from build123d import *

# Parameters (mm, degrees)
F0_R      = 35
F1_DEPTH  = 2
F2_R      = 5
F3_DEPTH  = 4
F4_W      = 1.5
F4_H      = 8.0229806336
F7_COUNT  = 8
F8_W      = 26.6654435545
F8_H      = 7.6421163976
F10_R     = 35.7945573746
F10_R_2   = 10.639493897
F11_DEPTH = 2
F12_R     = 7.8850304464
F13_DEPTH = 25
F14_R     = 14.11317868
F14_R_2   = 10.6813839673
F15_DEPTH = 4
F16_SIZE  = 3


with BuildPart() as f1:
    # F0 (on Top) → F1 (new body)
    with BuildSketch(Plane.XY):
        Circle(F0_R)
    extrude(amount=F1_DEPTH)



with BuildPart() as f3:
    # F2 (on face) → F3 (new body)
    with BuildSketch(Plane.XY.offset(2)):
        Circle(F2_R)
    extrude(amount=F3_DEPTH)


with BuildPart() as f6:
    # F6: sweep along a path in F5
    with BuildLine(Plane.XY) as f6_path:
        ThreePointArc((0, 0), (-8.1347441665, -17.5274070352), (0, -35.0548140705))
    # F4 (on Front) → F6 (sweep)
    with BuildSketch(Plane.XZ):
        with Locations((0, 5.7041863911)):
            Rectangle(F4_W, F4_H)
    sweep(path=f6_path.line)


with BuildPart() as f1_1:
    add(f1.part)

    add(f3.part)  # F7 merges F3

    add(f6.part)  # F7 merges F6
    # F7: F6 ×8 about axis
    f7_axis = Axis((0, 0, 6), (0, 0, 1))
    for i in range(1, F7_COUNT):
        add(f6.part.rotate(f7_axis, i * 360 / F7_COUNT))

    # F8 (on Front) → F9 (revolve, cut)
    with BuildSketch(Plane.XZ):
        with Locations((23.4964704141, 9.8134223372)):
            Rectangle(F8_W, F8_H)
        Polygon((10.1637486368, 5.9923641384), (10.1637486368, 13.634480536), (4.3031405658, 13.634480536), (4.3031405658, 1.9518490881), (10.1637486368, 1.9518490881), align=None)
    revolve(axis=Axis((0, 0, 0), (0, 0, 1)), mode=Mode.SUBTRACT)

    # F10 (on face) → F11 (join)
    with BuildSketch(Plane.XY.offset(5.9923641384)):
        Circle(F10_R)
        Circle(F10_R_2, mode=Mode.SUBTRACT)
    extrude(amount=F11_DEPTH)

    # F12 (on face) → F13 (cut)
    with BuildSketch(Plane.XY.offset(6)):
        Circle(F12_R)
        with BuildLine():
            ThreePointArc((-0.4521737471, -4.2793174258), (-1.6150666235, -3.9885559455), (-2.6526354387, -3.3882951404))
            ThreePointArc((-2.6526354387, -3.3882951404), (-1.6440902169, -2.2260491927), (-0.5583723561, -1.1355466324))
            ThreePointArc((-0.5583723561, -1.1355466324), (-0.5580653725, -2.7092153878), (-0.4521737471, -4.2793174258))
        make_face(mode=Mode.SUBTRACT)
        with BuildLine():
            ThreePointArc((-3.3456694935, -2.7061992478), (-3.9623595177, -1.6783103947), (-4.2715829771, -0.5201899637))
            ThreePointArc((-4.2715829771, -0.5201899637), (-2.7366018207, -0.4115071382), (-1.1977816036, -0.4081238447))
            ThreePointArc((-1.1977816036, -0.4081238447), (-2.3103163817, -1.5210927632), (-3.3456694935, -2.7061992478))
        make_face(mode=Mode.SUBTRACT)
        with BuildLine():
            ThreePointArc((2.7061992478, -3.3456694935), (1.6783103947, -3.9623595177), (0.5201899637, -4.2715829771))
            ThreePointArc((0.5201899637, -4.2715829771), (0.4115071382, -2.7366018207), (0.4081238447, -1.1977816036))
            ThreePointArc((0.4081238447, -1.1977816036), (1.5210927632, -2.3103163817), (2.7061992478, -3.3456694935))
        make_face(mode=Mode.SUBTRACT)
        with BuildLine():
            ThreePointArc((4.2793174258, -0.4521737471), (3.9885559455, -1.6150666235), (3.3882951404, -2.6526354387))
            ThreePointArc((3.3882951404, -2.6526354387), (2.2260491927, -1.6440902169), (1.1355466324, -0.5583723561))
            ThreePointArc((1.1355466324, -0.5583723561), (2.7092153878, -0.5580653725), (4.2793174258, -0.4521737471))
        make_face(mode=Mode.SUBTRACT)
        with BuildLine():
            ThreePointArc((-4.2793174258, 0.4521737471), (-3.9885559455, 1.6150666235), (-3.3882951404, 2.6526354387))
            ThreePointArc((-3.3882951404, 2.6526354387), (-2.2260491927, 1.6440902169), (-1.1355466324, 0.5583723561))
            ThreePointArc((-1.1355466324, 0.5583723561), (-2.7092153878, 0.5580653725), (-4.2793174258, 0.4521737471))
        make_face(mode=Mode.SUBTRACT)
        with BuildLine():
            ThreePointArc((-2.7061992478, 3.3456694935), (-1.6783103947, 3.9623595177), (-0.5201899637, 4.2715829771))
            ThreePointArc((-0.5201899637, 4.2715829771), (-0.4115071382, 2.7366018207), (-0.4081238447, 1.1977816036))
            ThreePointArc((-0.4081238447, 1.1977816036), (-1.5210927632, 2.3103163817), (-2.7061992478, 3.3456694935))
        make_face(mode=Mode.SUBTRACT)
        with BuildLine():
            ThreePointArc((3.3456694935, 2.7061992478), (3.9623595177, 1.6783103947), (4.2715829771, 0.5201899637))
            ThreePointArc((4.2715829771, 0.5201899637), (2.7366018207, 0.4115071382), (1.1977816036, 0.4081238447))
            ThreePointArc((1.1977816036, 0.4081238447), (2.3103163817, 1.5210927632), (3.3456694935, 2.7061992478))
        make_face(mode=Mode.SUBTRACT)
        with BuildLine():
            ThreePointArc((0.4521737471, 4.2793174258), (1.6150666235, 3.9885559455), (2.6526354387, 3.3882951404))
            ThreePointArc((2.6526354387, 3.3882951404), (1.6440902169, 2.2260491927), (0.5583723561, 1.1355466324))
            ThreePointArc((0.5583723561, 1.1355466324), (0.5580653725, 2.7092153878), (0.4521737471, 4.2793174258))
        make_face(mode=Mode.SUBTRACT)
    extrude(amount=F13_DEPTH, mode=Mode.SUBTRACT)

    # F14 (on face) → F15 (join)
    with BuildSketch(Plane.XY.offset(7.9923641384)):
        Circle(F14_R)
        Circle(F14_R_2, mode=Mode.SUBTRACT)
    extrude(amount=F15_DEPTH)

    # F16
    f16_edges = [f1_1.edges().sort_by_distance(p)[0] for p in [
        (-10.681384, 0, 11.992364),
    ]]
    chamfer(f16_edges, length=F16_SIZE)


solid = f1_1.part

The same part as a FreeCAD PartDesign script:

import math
import FreeCAD as App
import Part
import Sketcher

V = App.Vector
Q = App.Units.Quantity


def edges_at(feature, points):
    """Names of the edges that pass closest to the given points."""
    edges = feature.Shape.Edges
    near = lambda p: min(range(len(edges)), key=lambda i: edges[i].distToShape(Part.Vertex(*p))[0])
    return sorted({f"Edge{near(p) + 1}" for p in points})


def add_polygon(sketch, points):
    """Adds a closed chain of lines whose ends are joined by coincident constraints."""
    first, n = sketch.GeometryCount, len(points)
    for a, b in zip(points, points[1:] + points[:1]):
        sketch.addGeometry(Part.LineSegment(App.Vector(*a, 0), App.Vector(*b, 0)), False)
    for i in range(n):
        sketch.addConstraint(Sketcher.Constraint("Coincident", first + i, 2, first + (i + 1) % n, 1))

doc = App.newDocument("Part")
body = doc.addObject("PartDesign::Body", "Body")

sketch1 = body.newObject("Sketcher::SketchObject", "Sketch")
sketch1.AttachmentSupport = (doc.getObject("XY_Plane"), [""])
sketch1.MapMode = "FlatFace"
sketch1.addGeometry(Part.Circle(V(0, 0, 0), V(0, 0, 1), 35), False)
sketch1.addConstraint(Sketcher.Constraint("Coincident", 0, 3, -1, 1))
sketch1.addConstraint(Sketcher.Constraint("Diameter", 0, Q("70 mm")))
pad1 = body.newObject("PartDesign::Pad", "Pad")
pad1.Profile = sketch1
pad1.Length = 2
body2 = doc.addObject("PartDesign::Body", "Body001")

sketch2 = body2.newObject("Sketcher::SketchObject", "Sketch001")
sketch2.AttachmentSupport = (doc.getObject("XY_Plane001"), [""])
sketch2.MapMode = "FlatFace"
sketch2.AttachmentOffset = App.Placement(V(0, 0, 2), App.Rotation())
sketch2.addGeometry(Part.Circle(V(0, 0, 0), V(0, 0, 1), 5), False)
sketch2.addConstraint(Sketcher.Constraint("Coincident", 0, 3, -1, 1))
sketch2.addConstraint(Sketcher.Constraint("Diameter", 0, Q("10 mm")))
pad2 = body2.newObject("PartDesign::Pad", "Pad001")
pad2.Profile = sketch2
pad2.Length = 4
body3 = doc.addObject("PartDesign::Body", "Body002")

sketch3 = body3.newObject("Sketcher::SketchObject", "Sketch002")
sketch3.AttachmentSupport = (doc.getObject("XZ_Plane002"), [""])
sketch3.MapMode = "FlatFace"
add_polygon(sketch3, [(-0.75, 9.715677), (-0.75, 1.692696), (0.75, 1.692696), (0.75, 9.715677)])
sketch3.addConstraint(Sketcher.Constraint("Vertical", 0))
sketch3.addConstraint(Sketcher.Constraint("Horizontal", 1))
sketch3.addConstraint(Sketcher.Constraint("Vertical", 2))
sketch3.addConstraint(Sketcher.Constraint("Horizontal", 3))
sketch3.addConstraint(Sketcher.Constraint("DistanceX", 1, 1, 1, 2, Q("1.5 mm")))
sketch3.addConstraint(Sketcher.Constraint("DistanceX", 0, 2, -1, 1, Q("0.75 mm")))
sketch3.addConstraint(Sketcher.Constraint("DistanceY", 0, 2, 0, 1, Q("8.022981 mm")))
sketch3.addConstraint(Sketcher.Constraint("DistanceY", -1, 1, 0, 2, Q("1.692696 mm")))

sketch4 = body3.newObject("Sketcher::SketchObject", "Sketch003")
sketch4.AttachmentSupport = (doc.getObject("XY_Plane002"), [""])
sketch4.MapMode = "FlatFace"
sketch4.addGeometry(Part.ArcOfCircle(Part.Circle(V(14.815213, -17.527407, 0), V(0, 0, 1), 22.949957), math.radians(130.206494), math.radians(229.793506)), False)
sketch4.addConstraint(Sketcher.Constraint("Coincident", 0, 1, -1, 1))
sketch4.addConstraint(Sketcher.Constraint("PointOnObject", 0, 2, -2))
sketch4.addConstraint(Sketcher.Constraint("Radius", 0, Q("22.949957 mm")))
sketch4.addConstraint(Sketcher.Constraint("DistanceX", -1, 1, 0, 3, Q("14.815213 mm")))
doc.recompute()

additivepipe = body3.newObject("PartDesign::AdditivePipe", "AdditivePipe")
additivepipe.Profile = sketch3
additivepipe.Spine = (sketch4, ["Edge1"])
doc.recompute()

boolean = body.newObject("PartDesign::Boolean", "Boolean")
boolean.Type = "Fuse"
boolean.addObjects([body2])
doc.recompute()

body4 = doc.addObject("PartDesign::Body", "Body003")
body4.BaseFeature = body3
boolean2 = body.newObject("PartDesign::Boolean", "Boolean001")
boolean2.Type = "Fuse"
boolean2.addObjects([body4])
doc.recompute()

body5 = doc.addObject("PartDesign::Body", "Body004")
body5.BaseFeature = body3
body5.Placement = App.Placement(V(0, 0, 0), App.Rotation(V(0, 0, 1), 45))
boolean3 = body.newObject("PartDesign::Boolean", "Boolean002")
boolean3.Type = "Fuse"
boolean3.addObjects([body5])
doc.recompute()

body6 = doc.addObject("PartDesign::Body", "Body005")
body6.BaseFeature = body3
body6.Placement = App.Placement(V(0, 0, 0), App.Rotation(V(0, 0, 1), 90))
boolean4 = body.newObject("PartDesign::Boolean", "Boolean003")
boolean4.Type = "Fuse"
boolean4.addObjects([body6])
doc.recompute()

body7 = doc.addObject("PartDesign::Body", "Body006")
body7.BaseFeature = body3
body7.Placement = App.Placement(V(0, 0, 0), App.Rotation(V(0, 0, 1), 135))
boolean5 = body.newObject("PartDesign::Boolean", "Boolean004")
boolean5.Type = "Fuse"
boolean5.addObjects([body7])
doc.recompute()

body8 = doc.addObject("PartDesign::Body", "Body007")
body8.BaseFeature = body3
body8.Placement = App.Placement(V(0, 0, 0), App.Rotation(V(0, 0, 1), 180))
boolean6 = body.newObject("PartDesign::Boolean", "Boolean005")
boolean6.Type = "Fuse"
boolean6.addObjects([body8])
doc.recompute()

body9 = doc.addObject("PartDesign::Body", "Body008")
body9.BaseFeature = body3
body9.Placement = App.Placement(V(0, 0, 0), App.Rotation(V(0, 0, 1), 225))
boolean7 = body.newObject("PartDesign::Boolean", "Boolean006")
boolean7.Type = "Fuse"
boolean7.addObjects([body9])
doc.recompute()

body10 = doc.addObject("PartDesign::Body", "Body009")
body10.BaseFeature = body3
body10.Placement = App.Placement(V(0, 0, 0), App.Rotation(V(0, 0, 1), 270))
boolean8 = body.newObject("PartDesign::Boolean", "Boolean007")
boolean8.Type = "Fuse"
boolean8.addObjects([body10])
doc.recompute()

body3.Placement = App.Placement(V(0, 0, 0), App.Rotation(V(0, 0, 1), 315))
boolean9 = body.newObject("PartDesign::Boolean", "Boolean008")
boolean9.Type = "Fuse"
boolean9.addObjects([body3])

sketch5 = body.newObject("Sketcher::SketchObject", "Sketch004")
sketch5.AttachmentSupport = (doc.getObject("XZ_Plane"), [""])
sketch5.MapMode = "FlatFace"
add_polygon(sketch5, [(10.163749, 5.992364), (36.829192, 5.992364), (36.829192, 13.634481), (4.303141, 13.634481), (4.303141, 1.951849), (10.163749, 1.951849)])
sketch5.addConstraint(Sketcher.Constraint("Horizontal", 0))
sketch5.addConstraint(Sketcher.Constraint("Vertical", 1))
sketch5.addConstraint(Sketcher.Constraint("Horizontal", 2))
sketch5.addConstraint(Sketcher.Constraint("Vertical", 3))
sketch5.addConstraint(Sketcher.Constraint("Horizontal", 4))
sketch5.addConstraint(Sketcher.Constraint("Vertical", 5))
sketch5.addConstraint(Sketcher.Constraint("DistanceX", 2, 2, 2, 1, Q("32.526052 mm")))
sketch5.addConstraint(Sketcher.Constraint("DistanceX", 4, 1, 4, 2, Q("5.860608 mm")))
sketch5.addConstraint(Sketcher.Constraint("DistanceY", 3, 2, 3, 1, Q("11.682631 mm")))
sketch5.addConstraint(Sketcher.Constraint("DistanceY", 1, 1, 1, 2, Q("7.642116 mm")))
sketch5.addConstraint(Sketcher.Constraint("DistanceY", -1, 1, 1, 2, Q("13.634481 mm")))
sketch5.addConstraint(Sketcher.Constraint("DistanceX", -1, 1, 2, 2, Q("4.303141 mm")))
groove = body.newObject("PartDesign::Groove", "Groove")
groove.Profile = sketch5
groove.ReferenceAxis = (sketch5, ["V_Axis"])
groove.Angle = 360

sketch6 = body.newObject("Sketcher::SketchObject", "Sketch005")
sketch6.AttachmentSupport = (doc.getObject("XY_Plane"), [""])
sketch6.MapMode = "FlatFace"
sketch6.AttachmentOffset = App.Placement(V(0, 0, 5.992364), App.Rotation())
sketch6.addGeometry(Part.Circle(V(0, 0, 0), V(0, 0, 1), 35.794557), False)
sketch6.addGeometry(Part.Circle(V(0, 0, 0), V(0, 0, 1), 10.639494), False)
sketch6.addConstraint(Sketcher.Constraint("Coincident", 0, 3, -1, 1))
sketch6.addConstraint(Sketcher.Constraint("Coincident", 1, 3, -1, 1))
sketch6.addConstraint(Sketcher.Constraint("Diameter", 0, Q("71.589115 mm")))
sketch6.addConstraint(Sketcher.Constraint("Diameter", 1, Q("21.278988 mm")))
pad3 = body.newObject("PartDesign::Pad", "Pad002")
pad3.Profile = sketch6
pad3.Length = 2

sketch7 = body.newObject("Sketcher::SketchObject", "Sketch006")
sketch7.AttachmentSupport = (doc.getObject("XY_Plane"), [""])
sketch7.MapMode = "FlatFace"
sketch7.AttachmentOffset = App.Placement(V(0, 0, 6), App.Rotation())
sketch7.addGeometry(Part.Circle(V(0, 0, 0), V(0, 0, 1), 7.88503), False)
sketch7.addGeometry(Part.ArcOfCircle(Part.Circle(V(22.869686, -1.917811, 0), V(0, 0, 1), 23.441115), math.radians(178.087601), math.radians(185.781904)), False)
sketch7.addGeometry(Part.ArcOfCircle(Part.Circle(V(0, 0, 0), V(0, 0, 1), 4.303141), math.radians(-128.056754), math.radians(-96.031772)), False)
sketch7.addGeometry(Part.ArcOfCircle(Part.Circle(V(14.815213, -17.527407, 0), V(0, 0, 1), 22.4731), math.radians(133.163952), math.radians(141.012032)), False)
sketch7.addGeometry(Part.ArcOfCircle(Part.Circle(V(14.815213, -17.527407, 0), V(0, 0, 1), 23.441115), math.radians(133.087601), math.radians(140.781904)), False)
sketch7.addGeometry(Part.ArcOfCircle(Part.Circle(V(0, 0, 0), V(0, 0, 1), 4.303141), math.radians(-173.056754), math.radians(-141.031772)), False)
sketch7.addGeometry(Part.ArcOfCircle(Part.Circle(V(-1.917811, -22.869686, 0), V(0, 0, 1), 22.4731), math.radians(88.163952), math.radians(96.012032)), False)
sketch7.addGeometry(Part.ArcOfCircle(Part.Circle(V(17.527407, 14.815213, 0), V(0, 0, 1), 23.441115), math.radians(-136.912399), math.radians(-129.218096)), False)
sketch7.addGeometry(Part.ArcOfCircle(Part.Circle(V(0, 0, 0), V(0, 0, 1), 4.303141), math.radians(-83.056754), math.radians(-51.031772)), False)
sketch7.addGeometry(Part.ArcOfCircle(Part.Circle(V(22.869686, -1.917811, 0), V(0, 0, 1), 22.4731), math.radians(178.163952), math.radians(186.012032)), False)
sketch7.addGeometry(Part.ArcOfCircle(Part.Circle(V(1.917811, 22.869686, 0), V(0, 0, 1), 23.441115), math.radians(-91.912399), math.radians(-84.218096)), False)
sketch7.addGeometry(Part.ArcOfCircle(Part.Circle(V(0, 0, 0), V(0, 0, 1), 4.303141), math.radians(-38.056754), math.radians(-6.031772)), False)
sketch7.addGeometry(Part.ArcOfCircle(Part.Circle(V(17.527407, 14.815213, 0), V(0, 0, 1), 22.4731), math.radians(-136.836048), math.radians(-128.987968)), False)
sketch7.addGeometry(Part.ArcOfCircle(Part.Circle(V(-1.917811, -22.869686, 0), V(0, 0, 1), 23.441115), math.radians(88.087601), math.radians(95.781904)), False)
sketch7.addGeometry(Part.ArcOfCircle(Part.Circle(V(0, 0, 0), V(0, 0, 1), 4.303141), math.radians(141.943246), math.radians(173.968228)), False)
sketch7.addGeometry(Part.ArcOfCircle(Part.Circle(V(-17.527407, -14.815213, 0), V(0, 0, 1), 22.4731), math.radians(43.163952), math.radians(51.012032)), False)
sketch7.addGeometry(Part.ArcOfCircle(Part.Circle(V(-17.527407, -14.815213, 0), V(0, 0, 1), 23.441115), math.radians(43.087601), math.radians(50.781904)), False)
sketch7.addGeometry(Part.ArcOfCircle(Part.Circle(V(0, 0, 0), V(0, 0, 1), 4.303141), math.radians(96.943246), math.radians(128.968228)), False)
sketch7.addGeometry(Part.ArcOfCircle(Part.Circle(V(-22.869686, 1.917811, 0), V(0, 0, 1), 22.4731), math.radians(-1.836048), math.radians(6.012032)), False)
sketch7.addGeometry(Part.ArcOfCircle(Part.Circle(V(-14.815213, 17.527407, 0), V(0, 0, 1), 23.441115), math.radians(-46.912399), math.radians(-39.218096)), False)
sketch7.addGeometry(Part.ArcOfCircle(Part.Circle(V(0, 0, 0), V(0, 0, 1), 4.303141), math.radians(6.943246), math.radians(38.968228)), False)
sketch7.addGeometry(Part.ArcOfCircle(Part.Circle(V(1.917811, 22.869686, 0), V(0, 0, 1), 22.4731), math.radians(-91.836048), math.radians(-83.987968)), False)
sketch7.addGeometry(Part.ArcOfCircle(Part.Circle(V(-22.869686, 1.917811, 0), V(0, 0, 1), 23.441115), math.radians(-1.912399), math.radians(5.781904)), False)
sketch7.addGeometry(Part.ArcOfCircle(Part.Circle(V(0, 0, 0), V(0, 0, 1), 4.303141), math.radians(51.943246), math.radians(83.968228)), False)
sketch7.addGeometry(Part.ArcOfCircle(Part.Circle(V(-14.815213, 17.527407, 0), V(0, 0, 1), 22.4731), math.radians(-46.836048), math.radians(-38.987968)), False)
sketch7.addConstraint(Sketcher.Constraint("Coincident", 1, 2, 2, 2))
sketch7.addConstraint(Sketcher.Constraint("Coincident", 2, 1, 3, 2))
sketch7.addConstraint(Sketcher.Constraint("Coincident", 3, 1, 1, 1))
sketch7.addConstraint(Sketcher.Constraint("Coincident", 4, 2, 5, 2))
sketch7.addConstraint(Sketcher.Constraint("Coincident", 5, 1, 6, 2))
sketch7.addConstraint(Sketcher.Constraint("Coincident", 6, 1, 4, 1))
sketch7.addConstraint(Sketcher.Constraint("Coincident", 7, 2, 8, 2))
sketch7.addConstraint(Sketcher.Constraint("Coincident", 8, 1, 9, 2))
sketch7.addConstraint(Sketcher.Constraint("Coincident", 9, 1, 7, 1))
sketch7.addConstraint(Sketcher.Constraint("Coincident", 10, 2, 11, 2))
sketch7.addConstraint(Sketcher.Constraint("Coincident", 11, 1, 12, 2))
sketch7.addConstraint(Sketcher.Constraint("Coincident", 12, 1, 10, 1))
sketch7.addConstraint(Sketcher.Constraint("Coincident", 13, 2, 14, 2))
sketch7.addConstraint(Sketcher.Constraint("Coincident", 14, 1, 15, 2))
sketch7.addConstraint(Sketcher.Constraint("Coincident", 15, 1, 13, 1))
sketch7.addConstraint(Sketcher.Constraint("Coincident", 16, 2, 17, 2))
sketch7.addConstraint(Sketcher.Constraint("Coincident", 17, 1, 18, 2))
sketch7.addConstraint(Sketcher.Constraint("Coincident", 18, 1, 16, 1))
sketch7.addConstraint(Sketcher.Constraint("Coincident", 19, 2, 20, 2))
sketch7.addConstraint(Sketcher.Constraint("Coincident", 20, 1, 21, 2))
sketch7.addConstraint(Sketcher.Constraint("Coincident", 21, 1, 19, 1))
sketch7.addConstraint(Sketcher.Constraint("Coincident", 22, 2, 23, 2))
sketch7.addConstraint(Sketcher.Constraint("Coincident", 23, 1, 24, 2))
sketch7.addConstraint(Sketcher.Constraint("Coincident", 24, 1, 22, 1))
sketch7.addConstraint(Sketcher.Constraint("Coincident", 0, 3, -1, 1))
sketch7.addConstraint(Sketcher.Constraint("Coincident", 2, 3, -1, 1))
sketch7.addConstraint(Sketcher.Constraint("Coincident", 5, 3, -1, 1))
sketch7.addConstraint(Sketcher.Constraint("Coincident", 8, 3, -1, 1))
sketch7.addConstraint(Sketcher.Constraint("Coincident", 11, 3, -1, 1))
sketch7.addConstraint(Sketcher.Constraint("Coincident", 14, 3, -1, 1))
sketch7.addConstraint(Sketcher.Constraint("Coincident", 17, 3, -1, 1))
sketch7.addConstraint(Sketcher.Constraint("Coincident", 20, 3, -1, 1))
sketch7.addConstraint(Sketcher.Constraint("Coincident", 23, 3, -1, 1))
sketch7.addConstraint(Sketcher.Constraint("Coincident", 4, 3, 3, 3))
sketch7.addConstraint(Sketcher.Constraint("Coincident", 9, 3, 1, 3))
sketch7.addConstraint(Sketcher.Constraint("Coincident", 12, 3, 7, 3))
sketch7.addConstraint(Sketcher.Constraint("Coincident", 13, 3, 6, 3))
sketch7.addConstraint(Sketcher.Constraint("Coincident", 16, 3, 15, 3))
sketch7.addConstraint(Sketcher.Constraint("Coincident", 21, 3, 10, 3))
sketch7.addConstraint(Sketcher.Constraint("Coincident", 22, 3, 18, 3))
sketch7.addConstraint(Sketcher.Constraint("Coincident", 24, 3, 19, 3))
sketch7.addConstraint(Sketcher.Constraint("Equal", 1, 4))
sketch7.addConstraint(Sketcher.Constraint("Equal", 2, 5))
sketch7.addConstraint(Sketcher.Constraint("Equal", 3, 6))
sketch7.addConstraint(Sketcher.Constraint("Equal", 4, 7))
sketch7.addConstraint(Sketcher.Constraint("Equal", 5, 8))
sketch7.addConstraint(Sketcher.Constraint("Equal", 6, 9))
sketch7.addConstraint(Sketcher.Constraint("Equal", 7, 10))
sketch7.addConstraint(Sketcher.Constraint("Equal", 8, 11))
sketch7.addConstraint(Sketcher.Constraint("Equal", 9, 12))
sketch7.addConstraint(Sketcher.Constraint("Equal", 10, 13))
sketch7.addConstraint(Sketcher.Constraint("Equal", 11, 14))
sketch7.addConstraint(Sketcher.Constraint("Equal", 12, 15))
sketch7.addConstraint(Sketcher.Constraint("Equal", 13, 16))
sketch7.addConstraint(Sketcher.Constraint("Equal", 14, 17))
sketch7.addConstraint(Sketcher.Constraint("Equal", 15, 18))
sketch7.addConstraint(Sketcher.Constraint("Equal", 16, 19))
sketch7.addConstraint(Sketcher.Constraint("Equal", 17, 20))
sketch7.addConstraint(Sketcher.Constraint("Equal", 18, 21))
sketch7.addConstraint(Sketcher.Constraint("Equal", 19, 22))
sketch7.addConstraint(Sketcher.Constraint("Equal", 20, 23))
sketch7.addConstraint(Sketcher.Constraint("Equal", 21, 24))
sketch7.addConstraint(Sketcher.Constraint("Symmetric", 6, 3, 10, 3, -1, 1))
sketch7.addConstraint(Sketcher.Constraint("Symmetric", 7, 3, 15, 3, -1, 1))
sketch7.addConstraint(Sketcher.Constraint("Symmetric", 1, 3, 18, 3, -1, 1))
sketch7.addConstraint(Sketcher.Constraint("Symmetric", 3, 3, 19, 3, -1, 1))
sketch7.addConstraint(Sketcher.Constraint("Radius", 3, Q("22.4731 mm")))
sketch7.addConstraint(Sketcher.Constraint("Diameter", 0, Q("15.770061 mm")))
sketch7.addConstraint(Sketcher.Constraint("Radius", 2, Q("4.303141 mm")))
sketch7.addConstraint(Sketcher.Constraint("Radius", 1, Q("23.441115 mm")))
sketch7.addConstraint(Sketcher.Constraint("DistanceY", 4, 2, -1, 1, Q("2.706199 mm")))
sketch7.addConstraint(Sketcher.Constraint("DistanceX", -1, 1, 7, 2, Q("2.706199 mm")))
sketch7.addConstraint(Sketcher.Constraint("DistanceY", 1, 3, -1, 1, Q("1.917811 mm")))
sketch7.addConstraint(Sketcher.Constraint("DistanceX", 6, 3, -1, 1, Q("1.917811 mm")))
sketch7.addConstraint(Sketcher.Constraint("DistanceY", 5, 1, -1, 1, Q("0.52019 mm")))
sketch7.addConstraint(Sketcher.Constraint("DistanceX", 6, 1, -1, 1, Q("1.197782 mm")))
sketch7.addConstraint(Sketcher.Constraint("DistanceX", -1, 1, 8, 1, Q("0.52019 mm")))
sketch7.addConstraint(Sketcher.Constraint("DistanceY", 9, 1, -1, 1, Q("1.197782 mm")))
pocket1 = body.newObject("PartDesign::Pocket", "Pocket")
pocket1.Profile = sketch7
pocket1.Length = 25
pocket1.Reversed = True

sketch8 = body.newObject("Sketcher::SketchObject", "Sketch007")
sketch8.AttachmentSupport = (doc.getObject("XY_Plane"), [""])
sketch8.MapMode = "FlatFace"
sketch8.AttachmentOffset = App.Placement(V(0, 0, 7.992364), App.Rotation())
sketch8.addGeometry(Part.Circle(V(0, 0, 0), V(0, 0, 1), 14.113179), False)
sketch8.addGeometry(Part.Circle(V(0, 0, 0), V(0, 0, 1), 10.681384), False)
sketch8.addConstraint(Sketcher.Constraint("Coincident", 0, 3, -1, 1))
sketch8.addConstraint(Sketcher.Constraint("Coincident", 1, 3, -1, 1))
sketch8.addConstraint(Sketcher.Constraint("Diameter", 0, Q("28.226357 mm")))
sketch8.addConstraint(Sketcher.Constraint("Diameter", 1, Q("21.362768 mm")))
pad4 = body.newObject("PartDesign::Pad", "Pad003")
pad4.Profile = sketch8
pad4.Length = 4
doc.recompute()

chamfer = body.newObject("PartDesign::Chamfer", "Chamfer")
chamfer.Base = (pad4, edges_at(pad4, [(-10.681, 0, 11.992)]))
chamfer.Size = 3

doc.recompute()
